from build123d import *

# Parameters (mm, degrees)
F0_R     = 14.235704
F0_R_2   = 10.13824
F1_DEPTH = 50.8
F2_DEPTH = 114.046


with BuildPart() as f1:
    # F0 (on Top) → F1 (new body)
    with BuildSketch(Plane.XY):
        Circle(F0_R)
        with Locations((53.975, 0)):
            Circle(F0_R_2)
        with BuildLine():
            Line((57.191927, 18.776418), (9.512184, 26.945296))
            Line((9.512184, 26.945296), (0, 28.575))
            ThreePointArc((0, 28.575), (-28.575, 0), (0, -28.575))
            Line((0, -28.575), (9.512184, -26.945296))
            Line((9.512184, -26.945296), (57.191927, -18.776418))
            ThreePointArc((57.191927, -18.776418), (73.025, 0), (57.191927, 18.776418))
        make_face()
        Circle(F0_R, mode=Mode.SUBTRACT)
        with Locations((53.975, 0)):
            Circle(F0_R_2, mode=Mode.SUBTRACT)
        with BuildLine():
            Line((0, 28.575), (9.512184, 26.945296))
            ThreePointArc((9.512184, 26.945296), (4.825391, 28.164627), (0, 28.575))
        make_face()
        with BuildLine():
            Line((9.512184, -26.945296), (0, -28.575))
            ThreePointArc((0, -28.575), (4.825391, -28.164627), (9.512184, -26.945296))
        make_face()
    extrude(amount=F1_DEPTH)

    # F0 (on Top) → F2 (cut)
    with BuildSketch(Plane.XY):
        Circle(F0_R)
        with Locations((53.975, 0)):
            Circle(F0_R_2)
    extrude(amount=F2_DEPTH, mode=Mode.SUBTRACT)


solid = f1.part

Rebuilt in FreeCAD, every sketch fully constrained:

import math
import FreeCAD as App
import Part
import Sketcher
Q = App.Units.Quantity

doc = App.newDocument("Part")
body = doc.addObject("PartDesign::Body", "Body")

sketch1 = body.newObject("Sketcher::SketchObject", "Sketch")
sketch1.AttachmentSupport = (doc.getObject("XY_Plane"), [""])
sketch1.MapMode = "FlatFace"
sketch1.addGeometry([
    Part.LineSegment(App.Vector(57.191927, 18.776418, 0), App.Vector(9.512184, 26.945296, 0)),
    Part.ArcOfCircle(Part.Circle(App.Vector(-0.000002, -0.000013, 0), App.Vector(0, 0, 1), 28.575013), math.radians(70.556037), math.radians(89.999995)),
    Part.ArcOfCircle(Part.Circle(App.Vector(0, 0, 0), App.Vector(0, 0, 1), 28.575), math.radians(90), math.radians(270)),
    Part.ArcOfCircle(Part.Circle(App.Vector(-0.000002, 0.000013, 0), App.Vector(0, 0, 1), 28.575013), math.radians(-89.999995), math.radians(-70.556037)),
    Part.LineSegment(App.Vector(9.512184, -26.945296, 0), App.Vector(57.191927, -18.776418, 0)),
    Part.ArcOfCircle(Part.Circle(App.Vector(53.975, 0, 0), App.Vector(0, 0, 1), 19.05), math.radians(-80.278018), math.radians(80.278018)),
    Part.Circle(App.Vector(0, 0, 0), App.Vector(0, 0, 1), 14.235704),
    Part.Circle(App.Vector(53.975, 0, 0), App.Vector(0, 0, 1), 10.13824),
], False)
sketch1.addConstraint([
    Sketcher.Constraint("Coincident", 0, 2, 1, 1),
    Sketcher.Constraint("Tangent", 1, 2, 2, 1),
    Sketcher.Constraint("Tangent", 2, 2, 3, 1),
    Sketcher.Constraint("Coincident", 3, 2, 4, 1),
    Sketcher.Constraint("Tangent", 4, 2, 5, 1),
    Sketcher.Constraint("Tangent", 5, 2, 0, 1),
    Sketcher.Constraint("Coincident", 2, 3, -1, 1),
    Sketcher.Constraint("Coincident", 6, 3, -1, 1),
    Sketcher.Constraint("Coincident", 7, 3, 5, 3),
    Sketcher.Constraint("Equal", 1, 3),
    Sketcher.Constraint("Symmetric", 4, 2, 5, 2, -1),
    Sketcher.Constraint("PointOnObject", 1, 2, -2),
    Sketcher.Constraint("PointOnObject", 2, 2, -2),
    Sketcher.Constraint("Radius", 5, Q("0.75 in")),
    Sketcher.Constraint("Radius", 2, Q("1.125 in")),
    Sketcher.Constraint("Diameter", 6, 28.471408),
    Sketcher.Constraint("Diameter", 7, 20.27648),
    Sketcher.Constraint("DistanceX", -1, 1, 5, 3, Q("2.125 in")),
    Sketcher.Constraint("Radius", 1, 28.575013),
    Sketcher.Constraint("Distance", 0, 48.374461),
])
pad1 = body.newObject("PartDesign::Pad", "Pad")
pad1.Profile = sketch1
pad1.Length = Q("2 in")

sketch2 = body.newObject("Sketcher::SketchObject", "Sketch001")
sketch2.AttachmentSupport = (doc.getObject("XY_Plane"), [""])
sketch2.MapMode = "FlatFace"
sketch2.addGeometry([
    Part.Circle(App.Vector(0, 0, 0), App.Vector(0, 0, 1), 14.235704),
    Part.Circle(App.Vector(53.975, 0, 0), App.Vector(0, 0, 1), 10.13824),
], False)
sketch2.addConstraint([
    Sketcher.Constraint("Coincident", 0, 3, -1, 1),
    Sketcher.Constraint("PointOnObject", 1, 3, -1),
    Sketcher.Constraint("Diameter", 0, 28.471408),
    Sketcher.Constraint("Diameter", 1, 20.27648),
    Sketcher.Constraint("DistanceX", -1, 1, 1, 3, Q("2.125 in")),
])
pocket1 = body.newObject("PartDesign::Pocket", "Pocket")
pocket1.Profile = sketch2
pocket1.Length = Q("4.49 in")
pocket1.Reversed = True

doc.recompute()
